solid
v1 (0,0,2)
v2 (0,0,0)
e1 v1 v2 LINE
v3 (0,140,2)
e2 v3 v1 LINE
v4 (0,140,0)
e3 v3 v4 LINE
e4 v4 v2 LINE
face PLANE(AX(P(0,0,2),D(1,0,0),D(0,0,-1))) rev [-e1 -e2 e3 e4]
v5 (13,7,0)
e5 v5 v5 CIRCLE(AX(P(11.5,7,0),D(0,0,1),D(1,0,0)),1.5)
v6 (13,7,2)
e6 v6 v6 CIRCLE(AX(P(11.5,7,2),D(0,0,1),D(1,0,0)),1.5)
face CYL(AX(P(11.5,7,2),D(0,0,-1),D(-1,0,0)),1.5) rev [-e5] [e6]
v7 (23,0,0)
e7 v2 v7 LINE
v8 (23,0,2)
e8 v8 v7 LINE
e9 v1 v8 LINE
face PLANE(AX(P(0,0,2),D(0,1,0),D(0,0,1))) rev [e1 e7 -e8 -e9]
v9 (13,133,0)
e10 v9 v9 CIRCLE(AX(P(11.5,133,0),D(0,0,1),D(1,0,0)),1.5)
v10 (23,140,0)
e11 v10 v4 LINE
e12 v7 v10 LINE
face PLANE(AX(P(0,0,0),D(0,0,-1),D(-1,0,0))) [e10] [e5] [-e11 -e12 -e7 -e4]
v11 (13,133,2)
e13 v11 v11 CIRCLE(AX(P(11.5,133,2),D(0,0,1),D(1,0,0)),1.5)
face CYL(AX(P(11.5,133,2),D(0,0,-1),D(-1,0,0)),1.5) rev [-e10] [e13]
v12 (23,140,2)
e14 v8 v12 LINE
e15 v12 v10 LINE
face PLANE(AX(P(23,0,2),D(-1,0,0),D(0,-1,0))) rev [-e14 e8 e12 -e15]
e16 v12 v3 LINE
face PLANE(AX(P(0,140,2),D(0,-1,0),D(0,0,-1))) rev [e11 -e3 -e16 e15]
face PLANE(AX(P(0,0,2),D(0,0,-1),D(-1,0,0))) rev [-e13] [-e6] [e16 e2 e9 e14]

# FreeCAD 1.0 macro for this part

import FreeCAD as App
import Part
import Sketcher
Q = App.Units.Quantity

doc = App.newDocument("Part")
params = doc.addObject("Spreadsheet::Sheet", "Params")
for row, (alias, value) in enumerate([
    ("sketch1_diameter", "3 mm"),
    ("sketch1_width", "23 mm"),
    ("sketch1_height", "140 mm"),
    ("pad1_length", "2 mm"),
], start=1):
    params.set(f"A{row}", alias)
    params.set(f"B{row}", "=" + value)
    params.setAlias(f"B{row}", alias)

body = doc.addObject("PartDesign::Body", "Body")

sketch1 = body.newObject("Sketcher::SketchObject", "Sketch")
sketch1.AttachmentSupport = (doc.getObject("XY_Plane"), [""])
sketch1.MapMode = "FlatFace"
sketch1.addGeometry([
    Part.LineSegment(App.Vector(0, 140, 0), App.Vector(0, 0, 0)),
    Part.LineSegment(App.Vector(0, 0, 0), App.Vector(23, 0, 0)),
    Part.LineSegment(App.Vector(23, 0, 0), App.Vector(23, 140, 0)),
    Part.LineSegment(App.Vector(23, 140, 0), App.Vector(0, 140, 0)),
    Part.Circle(App.Vector(11.5, 7, 0), App.Vector(0, 0, 1), 1.5),
    Part.Circle(App.Vector(11.5, 133, 0), App.Vector(0, 0, 1), 1.5),
], False)
sketch1.addConstraint([
    Sketcher.Constraint("Coincident", 0, 2, 1, 1),
    Sketcher.Constraint("Coincident", 1, 2, 2, 1),
    Sketcher.Constraint("Coincident", 2, 2, 3, 1),
    Sketcher.Constraint("Coincident", 3, 2, 0, 1),
    Sketcher.Constraint("Vertical", 0),
    Sketcher.Constraint("Horizontal", 1),
    Sketcher.Constraint("Vertical", 2),
    Sketcher.Constraint("Horizontal", 3),
    Sketcher.Constraint("Coincident", 0, 2, -1, 1),
    Sketcher.Constraint("Equal", 4, 5),
    Sketcher.Constraint("Vertical", 4, 3, 5, 3),
    Sketcher.Constraint("Diameter", 4, Q("3 mm")),
    Sketcher.Constraint("DistanceX", 1, 1, 1, 2, Q("23 mm")),
    Sketcher.Constraint("DistanceY", 0, 2, 0, 1, Q("140 mm")),
    Sketcher.Constraint("DistanceY", -1, 1, 4, 3, Q("7 mm")),
    Sketcher.Constraint("DistanceY", -1, 1, 5, 3, Q("133 mm")),
    Sketcher.Constraint("DistanceX", -1, 1, 4, 3, Q("11.5 mm")),
])
sketch1.setExpression("Constraints[11]", "Params.sketch1_diameter")
sketch1.setExpression("Constraints[12]", "Params.sketch1_width")
sketch1.setExpression("Constraints[13]", "Params.sketch1_height")
pad1 = body.newObject("PartDesign::Pad", "Pad")
pad1.Profile = sketch1
pad1.setExpression("Length", "Params.pad1_length")

doc.recompute()
